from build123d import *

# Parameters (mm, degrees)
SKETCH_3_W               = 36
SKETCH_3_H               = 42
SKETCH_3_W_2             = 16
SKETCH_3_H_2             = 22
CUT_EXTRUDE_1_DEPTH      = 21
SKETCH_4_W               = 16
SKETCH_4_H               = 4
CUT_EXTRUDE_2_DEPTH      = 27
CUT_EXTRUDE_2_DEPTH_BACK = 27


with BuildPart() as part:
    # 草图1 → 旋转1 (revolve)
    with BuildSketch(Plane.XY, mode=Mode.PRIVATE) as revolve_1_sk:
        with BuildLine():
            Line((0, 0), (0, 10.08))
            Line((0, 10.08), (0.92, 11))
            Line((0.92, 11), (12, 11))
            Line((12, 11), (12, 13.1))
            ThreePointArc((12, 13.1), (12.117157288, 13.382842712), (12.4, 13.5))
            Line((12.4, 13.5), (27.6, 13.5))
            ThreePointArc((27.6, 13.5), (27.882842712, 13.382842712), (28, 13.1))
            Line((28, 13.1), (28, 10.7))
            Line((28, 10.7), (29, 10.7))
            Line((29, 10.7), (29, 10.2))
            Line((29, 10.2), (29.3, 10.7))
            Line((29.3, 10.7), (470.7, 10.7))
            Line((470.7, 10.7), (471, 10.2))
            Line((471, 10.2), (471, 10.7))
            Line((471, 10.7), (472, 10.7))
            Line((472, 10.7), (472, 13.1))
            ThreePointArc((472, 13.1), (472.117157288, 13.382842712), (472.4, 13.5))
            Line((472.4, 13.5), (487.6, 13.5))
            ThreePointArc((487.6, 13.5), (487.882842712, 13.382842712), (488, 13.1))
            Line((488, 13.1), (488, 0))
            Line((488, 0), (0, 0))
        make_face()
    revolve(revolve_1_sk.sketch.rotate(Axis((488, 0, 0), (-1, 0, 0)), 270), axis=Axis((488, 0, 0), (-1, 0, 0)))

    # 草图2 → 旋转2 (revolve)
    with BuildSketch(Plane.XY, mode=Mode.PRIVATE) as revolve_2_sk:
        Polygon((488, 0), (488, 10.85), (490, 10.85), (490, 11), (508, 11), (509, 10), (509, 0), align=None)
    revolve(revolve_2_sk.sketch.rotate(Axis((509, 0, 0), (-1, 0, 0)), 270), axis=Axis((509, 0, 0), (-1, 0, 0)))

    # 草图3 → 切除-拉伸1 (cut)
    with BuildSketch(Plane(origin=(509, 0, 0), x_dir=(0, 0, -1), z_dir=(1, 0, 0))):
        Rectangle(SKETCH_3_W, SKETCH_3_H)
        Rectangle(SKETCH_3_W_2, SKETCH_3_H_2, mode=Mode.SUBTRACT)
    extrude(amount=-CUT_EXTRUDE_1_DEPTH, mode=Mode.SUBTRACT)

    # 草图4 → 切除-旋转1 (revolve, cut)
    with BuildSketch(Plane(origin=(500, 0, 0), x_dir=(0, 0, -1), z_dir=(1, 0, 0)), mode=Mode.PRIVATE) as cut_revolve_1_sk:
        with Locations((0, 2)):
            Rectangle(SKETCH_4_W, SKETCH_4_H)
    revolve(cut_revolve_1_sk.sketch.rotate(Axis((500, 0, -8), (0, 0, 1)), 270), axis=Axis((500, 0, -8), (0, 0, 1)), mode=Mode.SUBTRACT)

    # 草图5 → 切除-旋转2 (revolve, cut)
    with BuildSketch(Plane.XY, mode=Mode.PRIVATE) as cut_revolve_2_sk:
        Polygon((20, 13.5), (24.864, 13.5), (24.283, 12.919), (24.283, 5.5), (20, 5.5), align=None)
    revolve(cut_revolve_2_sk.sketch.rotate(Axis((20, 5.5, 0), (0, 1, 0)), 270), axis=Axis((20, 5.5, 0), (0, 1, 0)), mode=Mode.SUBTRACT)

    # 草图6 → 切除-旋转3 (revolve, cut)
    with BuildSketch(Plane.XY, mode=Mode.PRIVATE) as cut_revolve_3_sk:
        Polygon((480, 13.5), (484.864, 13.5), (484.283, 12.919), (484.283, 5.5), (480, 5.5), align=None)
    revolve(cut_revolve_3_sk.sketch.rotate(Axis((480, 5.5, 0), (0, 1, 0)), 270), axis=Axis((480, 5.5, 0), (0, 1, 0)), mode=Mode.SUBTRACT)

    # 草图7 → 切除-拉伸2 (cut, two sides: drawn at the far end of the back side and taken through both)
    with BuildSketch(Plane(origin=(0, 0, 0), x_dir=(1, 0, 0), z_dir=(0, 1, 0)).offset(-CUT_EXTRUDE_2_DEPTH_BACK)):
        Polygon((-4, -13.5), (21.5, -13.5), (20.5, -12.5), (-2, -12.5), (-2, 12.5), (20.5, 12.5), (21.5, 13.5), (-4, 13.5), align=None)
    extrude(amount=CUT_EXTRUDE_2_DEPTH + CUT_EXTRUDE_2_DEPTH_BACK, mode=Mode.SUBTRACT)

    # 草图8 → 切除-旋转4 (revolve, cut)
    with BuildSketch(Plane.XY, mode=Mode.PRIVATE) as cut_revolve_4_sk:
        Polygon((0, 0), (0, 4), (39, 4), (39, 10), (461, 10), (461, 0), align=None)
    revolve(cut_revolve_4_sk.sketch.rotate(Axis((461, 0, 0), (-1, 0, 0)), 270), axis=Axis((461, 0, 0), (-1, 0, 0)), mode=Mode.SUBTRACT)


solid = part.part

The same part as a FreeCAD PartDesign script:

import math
import FreeCAD as App
import Part
import Sketcher

V = App.Vector
Q = App.Units.Quantity

doc = App.newDocument("Part")
body = doc.addObject("PartDesign::Body", "Body")

# Sketch on XY plane
sketch1 = body.newObject("Sketcher::SketchObject", "Sketch")
sketch1.AttachmentSupport = (doc.getObject("XY_Plane"), [""])
sketch1.MapMode = "FlatFace"
sketch1.addGeometry(Part.LineSegment(V(0, 10.08, 0), V(0, 0, 0)), False)
sketch1.addGeometry(Part.LineSegment(V(0, 0, 0), V(488, 0, 0)), False)
sketch1.addGeometry(Part.LineSegment(V(488, 0, 0), V(488, 13.1, 0)), False)
sketch1.addGeometry(Part.ArcOfCircle(Part.Circle(V(487.6, 13.1, 0), V(0, 0, 1), 0.4), math.radians(0), math.radians(90)), False)
sketch1.addGeometry(Part.LineSegment(V(487.6, 13.5, 0), V(472.4, 13.5, 0)), False)
sketch1.addGeometry(Part.ArcOfCircle(Part.Circle(V(472.4, 13.1, 0), V(0, 0, 1), 0.4), math.radians(90), math.radians(180)), False)
sketch1.addGeometry(Part.LineSegment(V(472, 13.1, 0), V(472, 10.7, 0)), False)
sketch1.addGeometry(Part.LineSegment(V(472, 10.7, 0), V(471, 10.7, 0)), False)
sketch1.addGeometry(Part.LineSegment(V(471, 10.7, 0), V(471, 10.2, 0)), False)
sketch1.addGeometry(Part.LineSegment(V(471, 10.2, 0), V(470.7, 10.7, 0)), False)
sketch1.addGeometry(Part.LineSegment(V(470.7, 10.7, 0), V(29.3, 10.7, 0)), False)
sketch1.addGeometry(Part.LineSegment(V(29.3, 10.7, 0), V(29, 10.2, 0)), False)
sketch1.addGeometry(Part.LineSegment(V(29, 10.2, 0), V(29, 10.7, 0)), False)
sketch1.addGeometry(Part.LineSegment(V(29, 10.7, 0), V(28, 10.7, 0)), False)
sketch1.addGeometry(Part.LineSegment(V(28, 10.7, 0), V(28, 13.1, 0)), False)
sketch1.addGeometry(Part.ArcOfCircle(Part.Circle(V(27.6, 13.1, 0), V(0, 0, 1), 0.4), math.radians(0), math.radians(90)), False)
sketch1.addGeometry(Part.LineSegment(V(27.6, 13.5, 0), V(12.4, 13.5, 0)), False)
sketch1.addGeometry(Part.ArcOfCircle(Part.Circle(V(12.4, 13.1, 0), V(0, 0, 1), 0.4), math.radians(90), math.radians(180)), False)
sketch1.addGeometry(Part.LineSegment(V(12, 13.1, 0), V(12, 11, 0)), False)
sketch1.addGeometry(Part.LineSegment(V(12, 11, 0), V(0.92, 11, 0)), False)
sketch1.addGeometry(Part.LineSegment(V(0.92, 11, 0), V(0, 10.08, 0)), False)
sketch1.addConstraint(Sketcher.Constraint("Coincident", 0, 2, 1, 1))
sketch1.addConstraint(Sketcher.Constraint("Coincident", 1, 2, 2, 1))
sketch1.addConstraint(Sketcher.Constraint("Tangent", 2, 2, 3, 1))
sketch1.addConstraint(Sketcher.Constraint("Tangent", 3, 2, 4, 1))
sketch1.addConstraint(Sketcher.Constraint("Tangent", 4, 2, 5, 1))
sketch1.addConstraint(Sketcher.Constraint("Tangent", 5, 2, 6, 1))
sketch1.addConstraint(Sketcher.Constraint("Coincident", 6, 2, 7, 1))
sketch1.addConstraint(Sketcher.Constraint("Coincident", 7, 2, 8, 1))
sketch1.addConstraint(Sketcher.Constraint("Coincident", 8, 2, 9, 1))
sketch1.addConstraint(Sketcher.Constraint("Coincident", 9, 2, 10, 1))
sketch1.addConstraint(Sketcher.Constraint("Coincident", 10, 2, 11, 1))
sketch1.addConstraint(Sketcher.Constraint("Coincident", 11, 2, 12, 1))
sketch1.addConstraint(Sketcher.Constraint("Coincident", 12, 2, 13, 1))
sketch1.addConstraint(Sketcher.Constraint("Coincident", 13, 2, 14, 1))
sketch1.addConstraint(Sketcher.Constraint("Tangent", 14, 2, 15, 1))
sketch1.addConstraint(Sketcher.Constraint("Tangent", 15, 2, 16, 1))
sketch1.addConstraint(Sketcher.Constraint("Tangent", 16, 2, 17, 1))
sketch1.addConstraint(Sketcher.Constraint("Tangent", 17, 2, 18, 1))
sketch1.addConstraint(Sketcher.Constraint("Coincident", 18, 2, 19, 1))
sketch1.addConstraint(Sketcher.Constraint("Coincident", 19, 2, 20, 1))
sketch1.addConstraint(Sketcher.Constraint("Coincident", 20, 2, 0, 1))
sketch1.addConstraint(Sketcher.Constraint("Vertical", 0))
sketch1.addConstraint(Sketcher.Constraint("Horizontal", 1))
sketch1.addConstraint(Sketcher.Constraint("Vertical", 2))
sketch1.addConstraint(Sketcher.Constraint("Horizontal", 4))
sketch1.addConstraint(Sketcher.Constraint("Vertical", 6))
sketch1.addConstraint(Sketcher.Constraint("Horizontal", 7))
sketch1.addConstraint(Sketcher.Constraint("Vertical", 8))
sketch1.addConstraint(Sketcher.Constraint("Horizontal", 10))
sketch1.addConstraint(Sketcher.Constraint("Vertical", 12))
sketch1.addConstraint(Sketcher.Constraint("Horizontal", 13))
sketch1.addConstraint(Sketcher.Constraint("Vertical", 14))
sketch1.addConstraint(Sketcher.Constraint("Horizontal", 16))
sketch1.addConstraint(Sketcher.Constraint("Vertical", 18))
sketch1.addConstraint(Sketcher.Constraint("Horizontal", 19))
sketch1.addConstraint(Sketcher.Constraint("Coincident", 0, 2, -1, 1))
sketch1.addConstraint(Sketcher.Constraint("Equal", 3, 5))
sketch1.addConstraint(Sketcher.Constraint("Equal", 5, 15))
sketch1.addConstraint(Sketcher.Constraint("Equal", 15, 17))
sketch1.addConstraint(Sketcher.Constraint("Horizontal", 5, 3, 15, 3))
sketch1.addConstraint(Sketcher.Constraint("Horizontal", 7, 2, 9, 2))
sketch1.addConstraint(Sketcher.Constraint("Horizontal", 8, 2, 11, 2))
sketch1.addConstraint(Sketcher.Constraint("Horizontal", 10, 2, 12, 2))
sketch1.addConstraint(Sketcher.Constraint("Equal", 7, 13))
sketch1.addConstraint(Sketcher.Constraint("Equal", 4, 16))
sketch1.addConstraint(Sketcher.Constraint("Equal", 9, 11))
sketch1.addConstraint(Sketcher.Constraint("Radius", 3, 0.4))
sketch1.addConstraint(Sketcher.Constraint("DistanceX", 1, 1, 1, 2, 488.0))
sketch1.addConstraint(Sketcher.Constraint("DistanceX", 7, 2, 7, 1, 1.0))
sketch1.addConstraint(Sketcher.Constraint("Angle", 20, Q("-135 deg")))
sketch1.addConstraint(Sketcher.Constraint("DistanceX", 4, 2, 4, 1, 15.2))
sketch1.addConstraint(Sketcher.Constraint("DistanceX", 10, 2, 10, 1, 441.4))
sketch1.addConstraint(Sketcher.Constraint("DistanceY", 2, 1, 2, 2, 13.1))
sketch1.addConstraint(Sketcher.Constraint("DistanceY", 6, 2, 6, 1, 2.4))
sketch1.addConstraint(Sketcher.Constraint("DistanceY", 8, 2, 8, 1, 0.5))
sketch1.addConstraint(Sketcher.Constraint("DistanceY", 18, 2, 18, 1, 2.1))
sketch1.addConstraint(Sketcher.Constraint("DistanceX", -1, 1, 11, 2, 29.0))
sketch1.addConstraint(Sketcher.Constraint("DistanceX", 19, 2, 19, 1, 11.08))
revolution = body.newObject("PartDesign::Revolution", "Revolution")
revolution.Profile = sketch1
revolution.ReferenceAxis = (sketch1, ["H_Axis"])
revolution.Angle = 360

# Sketch on XY plane
sketch2 = body.newObject("Sketcher::SketchObject", "Sketch001")
sketch2.AttachmentSupport = (doc.getObject("XY_Plane"), [""])
sketch2.MapMode = "FlatFace"
sketch2.addGeometry(Part.LineSegment(V(488, 10.85, 0), V(488, 0, 0)), False)
sketch2.addGeometry(Part.LineSegment(V(488, 0, 0), V(509, 0, 0)), False)
sketch2.addGeometry(Part.LineSegment(V(509, 0, 0), V(509, 10, 0)), False)
sketch2.addGeometry(Part.LineSegment(V(509, 10, 0), V(508, 11, 0)), False)
sketch2.addGeometry(Part.LineSegment(V(508, 11, 0), V(490, 11, 0)), False)
sketch2.addGeometry(Part.LineSegment(V(490, 11, 0), V(490, 10.85, 0)), False)
sketch2.addGeometry(Part.LineSegment(V(490, 10.85, 0), V(488, 10.85, 0)), False)
sketch2.addConstraint(Sketcher.Constraint("Coincident", 0, 2, 1, 1))
sketch2.addConstraint(Sketcher.Constraint("Coincident", 1, 2, 2, 1))
sketch2.addConstraint(Sketcher.Constraint("Coincident", 2, 2, 3, 1))
sketch2.addConstraint(Sketcher.Constraint("Coincident", 3, 2, 4, 1))
sketch2.addConstraint(Sketcher.Constraint("Coincident", 4, 2, 5, 1))
sketch2.addConstraint(Sketcher.Constraint("Coincident", 5, 2, 6, 1))
sketch2.addConstraint(Sketcher.Constraint("Coincident", 6, 2, 0, 1))
sketch2.addConstraint(Sketcher.Constraint("Vertical", 0))
sketch2.addConstraint(Sketcher.Constraint("Horizontal", 1))
sketch2.addConstraint(Sketcher.Constraint("Vertical", 2))
sketch2.addConstraint(Sketcher.Constraint("Horizontal", 4))
sketch2.addConstraint(Sketcher.Constraint("Vertical", 5))
sketch2.addConstraint(Sketcher.Constraint("Horizontal", 6))
sketch2.addConstraint(Sketcher.Constraint("PointOnObject", 0, 2, -1))
sketch2.addConstraint(Sketcher.Constraint("DistanceX", 1, 1, 1, 2, 21.0))
sketch2.addConstraint(Sketcher.Constraint("DistanceX", 4, 2, 4, 1, 18.0))
sketch2.addConstraint(Sketcher.Constraint("DistanceX", 6, 2, 6, 1, 2.0))
sketch2.addConstraint(Sketcher.Constraint("DistanceY", 2, 1, 2, 2, 10.0))
sketch2.addConstraint(Sketcher.Constraint("Angle", 3, Q("135 deg")))
sketch2.addConstraint(Sketcher.Constraint("DistanceX", -1, 1, 0, 2, 488.0))
sketch2.addConstraint(Sketcher.Constraint("DistanceY", 0, 2, 0, 1, 10.85))
revolution2 = body.newObject("PartDesign::Revolution", "Revolution001")
revolution2.Profile = sketch2
revolution2.ReferenceAxis = (sketch2, ["H_Axis"])
revolution2.Angle = 360

# Sketch on YZ plane
sketch3 = body.newObject("Sketcher::SketchObject", "Sketch002")
sketch3.AttachmentSupport = (doc.getObject("YZ_Plane"), [""])
sketch3.MapMode = "FlatFace"
sketch3.AttachmentOffset = App.Placement(V(0, 0, 509), App.Rotation())
sketch3.addGeometry(Part.LineSegment(V(21, 18, 0), V(-21, 18, 0)), False)
sketch3.addGeometry(Part.LineSegment(V(-21, 18, 0), V(-21, -18, 0)), False)
sketch3.addGeometry(Part.LineSegment(V(-21, -18, 0), V(21, -18, 0)), False)
sketch3.addGeometry(Part.LineSegment(V(21, -18, 0), V(21, 18, 0)), False)
sketch3.addGeometry(Part.LineSegment(V(-11, -8, 0), V(-11, 8, 0)), False)
sketch3.addGeometry(Part.LineSegment(V(-11, 8, 0), V(11, 8, 0)), False)
sketch3.addGeometry(Part.LineSegment(V(11, 8, 0), V(11, -8, 0)), False)
sketch3.addGeometry(Part.LineSegment(V(11, -8, 0), V(-11, -8, 0)), False)
sketch3.addConstraint(Sketcher.Constraint("Coincident", 0, 2, 1, 1))
sketch3.addConstraint(Sketcher.Constraint("Coincident", 1, 2, 2, 1))
sketch3.addConstraint(Sketcher.Constraint("Coincident", 2, 2, 3, 1))
sketch3.addConstraint(Sketcher.Constraint("Coincident", 3, 2, 0, 1))
sketch3.addConstraint(Sketcher.Constraint("Coincident", 4, 2, 5, 1))
sketch3.addConstraint(Sketcher.Constraint("Coincident", 5, 2, 6, 1))
sketch3.addConstraint(Sketcher.Constraint("Coincident", 6, 2, 7, 1))
sketch3.addConstraint(Sketcher.Constraint("Coincident", 7, 2, 4, 1))
sketch3.addConstraint(Sketcher.Constraint("Horizontal", 0))
sketch3.addConstraint(Sketcher.Constraint("Vertical", 1))
sketch3.addConstraint(Sketcher.Constraint("Horizontal", 2))
sketch3.addConstraint(Sketcher.Constraint("Vertical", 3))
sketch3.addConstraint(Sketcher.Constraint("Vertical", 4))
sketch3.addConstraint(Sketcher.Constraint("Horizontal", 5))
sketch3.addConstraint(Sketcher.Constraint("Vertical", 6))
sketch3.addConstraint(Sketcher.Constraint("Horizontal", 7))
sketch3.addConstraint(Sketcher.Constraint("Symmetric", 0, 2, 2, 2, -1, 1))
sketch3.addConstraint(Sketcher.Constraint("Symmetric", 4, 2, 6, 2, -1, 1))
sketch3.addConstraint(Sketcher.Constraint("DistanceX", 0, 2, 0, 1, 42.0))
sketch3.addConstraint(Sketcher.Constraint("DistanceX", 5, 1, 5, 2, 22.0))
sketch3.addConstraint(Sketcher.Constraint("DistanceY", 1, 2, 1, 1, 36.0))
sketch3.addConstraint(Sketcher.Constraint("DistanceY", 4, 1, 4, 2, 16.0))
pocket1 = body.newObject("PartDesign::Pocket", "Pocket")
pocket1.Profile = sketch3
pocket1.Length = 21

# Sketch on YZ plane
sketch4 = body.newObject("Sketcher::SketchObject", "Sketch003")
sketch4.AttachmentSupport = (doc.getObject("YZ_Plane"), [""])
sketch4.MapMode = "FlatFace"
sketch4.AttachmentOffset = App.Placement(V(0, 0, 500), App.Rotation())
sketch4.addGeometry(Part.LineSegment(V(4, 8, 0), V(0, 8, 0)), False)
sketch4.addGeometry(Part.LineSegment(V(0, 8, 0), V(0, -8, 0)), False)
sketch4.addGeometry(Part.LineSegment(V(0, -8, 0), V(4, -8, 0)), False)
sketch4.addGeometry(Part.LineSegment(V(4, -8, 0), V(4, 8, 0)), False)
sketch4.addConstraint(Sketcher.Constraint("Coincident", 0, 2, 1, 1))
sketch4.addConstraint(Sketcher.Constraint("Coincident", 1, 2, 2, 1))
sketch4.addConstraint(Sketcher.Constraint("Coincident", 2, 2, 3, 1))
sketch4.addConstraint(Sketcher.Constraint("Coincident", 3, 2, 0, 1))
sketch4.addConstraint(Sketcher.Constraint("Horizontal", 0))
sketch4.addConstraint(Sketcher.Constraint("Vertical", 1))
sketch4.addConstraint(Sketcher.Constraint("Horizontal", 2))
sketch4.addConstraint(Sketcher.Constraint("Vertical", 3))
sketch4.addConstraint(Sketcher.Constraint("Symmetric", 0, 2, 1, 2, -1, 1))
sketch4.addConstraint(Sketcher.Constraint("DistanceX", 0, 2, 0, 1, 4.0))
sketch4.addConstraint(Sketcher.Constraint("DistanceY", 1, 2, 1, 1, 16.0))
groove = body.newObject("PartDesign::Groove", "Groove")
groove.Profile = sketch4
groove.ReferenceAxis = (sketch4, ["V_Axis"])
groove.Angle = 360

# Sketch on XY plane
sketch5 = body.newObject("Sketcher::SketchObject", "Sketch004")
sketch5.AttachmentSupport = (doc.getObject("XY_Plane"), [""])
sketch5.MapMode = "FlatFace"
sketch5.addGeometry(Part.LineSegment(V(24.9, 13.5, 0), V(20, 13.5, 0)), False)
sketch5.addGeometry(Part.LineSegment(V(20, 13.5, 0), V(20, 5.5, 0)), False)
sketch5.addGeometry(Part.LineSegment(V(20, 5.5, 0), V(24.3, 5.5, 0)), False)
sketch5.addGeometry(Part.LineSegment(V(24.3, 5.5, 0), V(24.3, 12.9, 0)), False)
sketch5.addGeometry(Part.LineSegment(V(24.3, 12.9, 0), V(24.9, 13.5, 0)), False)
sketch5.addGeometry(Part.LineSegment(V(20, 5.5, 0), V(20, 13.5, 0)), True)  # axis
sketch5.addConstraint(Sketcher.Constraint("Coincident", 0, 2, 1, 1))
sketch5.addConstraint(Sketcher.Constraint("Coincident", 1, 2, 2, 1))
sketch5.addConstraint(Sketcher.Constraint("Coincident", 2, 2, 3, 1))
sketch5.addConstraint(Sketcher.Constraint("Coincident", 3, 2, 4, 1))
sketch5.addConstraint(Sketcher.Constraint("Coincident", 4, 2, 0, 1))
sketch5.addConstraint(Sketcher.Constraint("Horizontal", 0))
sketch5.addConstraint(Sketcher.Constraint("Vertical", 1))
sketch5.addConstraint(Sketcher.Constraint("Horizontal", 2))
sketch5.addConstraint(Sketcher.Constraint("Vertical", 3))
sketch5.addConstraint(Sketcher.Constraint("Vertical", 5))
sketch5.addConstraint(Sketcher.Constraint("Coincident", 5, 1, 1, 2))
sketch5.addConstraint(Sketcher.Constraint("Horizontal", 4, 2, 5, 2))
sketch5.addConstraint(Sketcher.Constraint("DistanceY", 1, 2, 1, 1, 8.0))
sketch5.addConstraint(Sketcher.Constraint("Angle", 4, Q("45 deg")))
sketch5.addConstraint(Sketcher.Constraint("DistanceX", -1, 1, 0, 2, 20.0))
sketch5.addConstraint(Sketcher.Constraint("DistanceY", -1, 1, 0, 2, 13.5))
sketch5.addConstraint(Sketcher.Constraint("DistanceX", 0, 2, 0, 1, 4.864))
sketch5.addConstraint(Sketcher.Constraint("DistanceX", 2, 1, 2, 2, 4.283))
groove2 = body.newObject("PartDesign::Groove", "Groove001")
groove2.Profile = sketch5
groove2.ReferenceAxis = (sketch5, ["Axis0"])
groove2.Angle = 360

# Sketch on XY plane
sketch6 = body.newObject("Sketcher::SketchObject", "Sketch005")
sketch6.AttachmentSupport = (doc.getObject("XY_Plane"), [""])
sketch6.MapMode = "FlatFace"
sketch6.addGeometry(Part.LineSegment(V(484.9, 13.5, 0), V(480, 13.5, 0)), False)
sketch6.addGeometry(Part.LineSegment(V(480, 13.5, 0), V(480, 5.5, 0)), False)
sketch6.addGeometry(Part.LineSegment(V(480, 5.5, 0), V(484.3, 5.5, 0)), False)
sketch6.addGeometry(Part.LineSegment(V(484.3, 5.5, 0), V(484.3, 12.9, 0)), False)
sketch6.addGeometry(Part.LineSegment(V(484.3, 12.9, 0), V(484.9, 13.5, 0)), False)
sketch6.addGeometry(Part.LineSegment(V(480, 5.5, 0), V(480, 13.5, 0)), True)  # axis
sketch6.addConstraint(Sketcher.Constraint("Coincident", 0, 2, 1, 1))
sketch6.addConstraint(Sketcher.Constraint("Coincident", 1, 2, 2, 1))
sketch6.addConstraint(Sketcher.Constraint("Coincident", 2, 2, 3, 1))
sketch6.addConstraint(Sketcher.Constraint("Coincident", 3, 2, 4, 1))
sketch6.addConstraint(Sketcher.Constraint("Coincident", 4, 2, 0, 1))
sketch6.addConstraint(Sketcher.Constraint("Horizontal", 0))
sketch6.addConstraint(Sketcher.Constraint("Vertical", 1))
sketch6.addConstraint(Sketcher.Constraint("Horizontal", 2))
sketch6.addConstraint(Sketcher.Constraint("Vertical", 3))
sketch6.addConstraint(Sketcher.Constraint("Vertical", 5))
sketch6.addConstraint(Sketcher.Constraint("Coincident", 5, 1, 1, 2))
sketch6.addConstraint(Sketcher.Constraint("Horizontal", 4, 2, 5, 2))
sketch6.addConstraint(Sketcher.Constraint("DistanceY", 1, 2, 1, 1, 8.0))
sketch6.addConstraint(Sketcher.Constraint("Angle", 4, Q("45 deg")))
sketch6.addConstraint(Sketcher.Constraint("DistanceX", -1, 1, 0, 2, 480.0))
sketch6.addConstraint(Sketcher.Constraint("DistanceY", -1, 1, 0, 2, 13.5))
sketch6.addConstraint(Sketcher.Constraint("DistanceX", 0, 2, 0, 1, 4.864))
sketch6.addConstraint(Sketcher.Constraint("DistanceX", 2, 1, 2, 2, 4.283))
groove3 = body.newObject("PartDesign::Groove", "Groove002")
groove3.Profile = sketch6
groove3.ReferenceAxis = (sketch6, ["Axis0"])
groove3.Angle = 360

# Sketch on XZ plane
sketch7 = body.newObject("Sketcher::SketchObject", "Sketch006")
sketch7.AttachmentSupport = (doc.getObject("XZ_Plane"), [""])
sketch7.MapMode = "FlatFace"
sketch7.addGeometry(Part.LineSegment(V(-4, 13.5, 0), V(21.5, 13.5, 0)), False)
sketch7.addGeometry(Part.LineSegment(V(21.5, 13.5, 0), V(20.5, 12.5, 0)), False)
sketch7.addGeometry(Part.LineSegment(V(20.5, 12.5, 0), V(-2, 12.5, 0)), False)
sketch7.addGeometry(Part.LineSegment(V(-2, 12.5, 0), V(-2, -12.5, 0)), False)
sketch7.addGeometry(Part.LineSegment(V(-2, -12.5, 0), V(20.5, -12.5, 0)), False)
sketch7.addGeometry(Part.LineSegment(V(20.5, -12.5, 0), V(21.5, -13.5, 0)), False)
sketch7.addGeometry(Part.LineSegment(V(21.5, -13.5, 0), V(-4, -13.5, 0)), False)
sketch7.addGeometry(Part.LineSegment(V(-4, -13.5, 0), V(-4, 13.5, 0)), False)
sketch7.addConstraint(Sketcher.Constraint("Coincident", 0, 2, 1, 1))
sketch7.addConstraint(Sketcher.Constraint("Coincident", 1, 2, 2, 1))
sketch7.addConstraint(Sketcher.Constraint("Coincident", 2, 2, 3, 1))
sketch7.addConstraint(Sketcher.Constraint("Coincident", 3, 2, 4, 1))
sketch7.addConstraint(Sketcher.Constraint("Coincident", 4, 2, 5, 1))
sketch7.addConstraint(Sketcher.Constraint("Coincident", 5, 2, 6, 1))
sketch7.addConstraint(Sketcher.Constraint("Coincident", 6, 2, 7, 1))
sketch7.addConstraint(Sketcher.Constraint("Coincident", 7, 2, 0, 1))
sketch7.addConstraint(Sketcher.Constraint("Horizontal", 0))
sketch7.addConstraint(Sketcher.Constraint("Horizontal", 2))
sketch7.addConstraint(Sketcher.Constraint("Vertical", 3))
sketch7.addConstraint(Sketcher.Constraint("Horizontal", 4))
sketch7.addConstraint(Sketcher.Constraint("Horizontal", 6))
sketch7.addConstraint(Sketcher.Constraint("Vertical", 7))
sketch7.addConstraint(Sketcher.Constraint("Symmetric", 1, 2, 4, 2, -1))
sketch7.addConstraint(Sketcher.Constraint("Symmetric", 0, 2, 5, 2, -1))
sketch7.addConstraint(Sketcher.Constraint("Perpendicular", 1, 5))
sketch7.addConstraint(Sketcher.Constraint("DistanceY", 3, 2, 3, 1, 25.0))
sketch7.addConstraint(Sketcher.Constraint("DistanceY", 7, 1, 7, 2, 27.0))
sketch7.addConstraint(Sketcher.Constraint("DistanceX", 0, 1, 0, 2, 25.5))
sketch7.addConstraint(Sketcher.Constraint("DistanceX", 2, 2, 2, 1, 22.5))
sketch7.addConstraint(Sketcher.Constraint("DistanceX", 2, 2, -1, 1, 2.0))
pocket2 = body.newObject("PartDesign::Pocket", "Pocket001")
pocket2.Profile = sketch7
pocket2.Type = "ThroughAll"
pocket2.Midplane = True

# Sketch on XY plane
sketch8 = body.newObject("Sketcher::SketchObject", "Sketch007")
sketch8.AttachmentSupport = (doc.getObject("XY_Plane"), [""])
sketch8.MapMode = "FlatFace"
sketch8.addGeometry(Part.LineSegment(V(0, 4, 0), V(0, 0, 0)), False)
sketch8.addGeometry(Part.LineSegment(V(0, 0, 0), V(461, 0, 0)), False)
sketch8.addGeometry(Part.LineSegment(V(461, 0, 0), V(461, 10, 0)), False)
sketch8.addGeometry(Part.LineSegment(V(461, 10, 0), V(39, 10, 0)), False)
sketch8.addGeometry(Part.LineSegment(V(39, 10, 0), V(39, 4, 0)), False)
sketch8.addGeometry(Part.LineSegment(V(39, 4, 0), V(0, 4, 0)), False)
sketch8.addConstraint(Sketcher.Constraint("Coincident", 0, 2, 1, 1))
sketch8.addConstraint(Sketcher.Constraint("Coincident", 1, 2, 2, 1))
sketch8.addConstraint(Sketcher.Constraint("Coincident", 2, 2, 3, 1))
sketch8.addConstraint(Sketcher.Constraint("Coincident", 3, 2, 4, 1))
sketch8.addConstraint(Sketcher.Constraint("Coincident", 4, 2, 5, 1))
sketch8.addConstraint(Sketcher.Constraint("Coincident", 5, 2, 0, 1))
sketch8.addConstraint(Sketcher.Constraint("Vertical", 0))
sketch8.addConstraint(Sketcher.Constraint("Horizontal", 1))
sketch8.addConstraint(Sketcher.Constraint("Vertical", 2))
sketch8.addConstraint(Sketcher.Constraint("Horizontal", 3))
sketch8.addConstraint(Sketcher.Constraint("Vertical", 4))
sketch8.addConstraint(Sketcher.Constraint("Horizontal", 5))
sketch8.addConstraint(Sketcher.Constraint("Coincident", 0, 2, -1, 1))
sketch8.addConstraint(Sketcher.Constraint("DistanceX", 1, 1, 1, 2, 461.0))
sketch8.addConstraint(Sketcher.Constraint("DistanceX", 3, 2, 3, 1, 422.0))
sketch8.addConstraint(Sketcher.Constraint("DistanceY", 0, 2, 0, 1, 4.0))
sketch8.addConstraint(Sketcher.Constraint("DistanceY", 2, 1, 2, 2, 10.0))
groove4 = body.newObject("PartDesign::Groove", "Groove003")
groove4.Profile = sketch8
groove4.ReferenceAxis = (sketch8, ["H_Axis"])
groove4.Angle = 360

doc.recompute()
